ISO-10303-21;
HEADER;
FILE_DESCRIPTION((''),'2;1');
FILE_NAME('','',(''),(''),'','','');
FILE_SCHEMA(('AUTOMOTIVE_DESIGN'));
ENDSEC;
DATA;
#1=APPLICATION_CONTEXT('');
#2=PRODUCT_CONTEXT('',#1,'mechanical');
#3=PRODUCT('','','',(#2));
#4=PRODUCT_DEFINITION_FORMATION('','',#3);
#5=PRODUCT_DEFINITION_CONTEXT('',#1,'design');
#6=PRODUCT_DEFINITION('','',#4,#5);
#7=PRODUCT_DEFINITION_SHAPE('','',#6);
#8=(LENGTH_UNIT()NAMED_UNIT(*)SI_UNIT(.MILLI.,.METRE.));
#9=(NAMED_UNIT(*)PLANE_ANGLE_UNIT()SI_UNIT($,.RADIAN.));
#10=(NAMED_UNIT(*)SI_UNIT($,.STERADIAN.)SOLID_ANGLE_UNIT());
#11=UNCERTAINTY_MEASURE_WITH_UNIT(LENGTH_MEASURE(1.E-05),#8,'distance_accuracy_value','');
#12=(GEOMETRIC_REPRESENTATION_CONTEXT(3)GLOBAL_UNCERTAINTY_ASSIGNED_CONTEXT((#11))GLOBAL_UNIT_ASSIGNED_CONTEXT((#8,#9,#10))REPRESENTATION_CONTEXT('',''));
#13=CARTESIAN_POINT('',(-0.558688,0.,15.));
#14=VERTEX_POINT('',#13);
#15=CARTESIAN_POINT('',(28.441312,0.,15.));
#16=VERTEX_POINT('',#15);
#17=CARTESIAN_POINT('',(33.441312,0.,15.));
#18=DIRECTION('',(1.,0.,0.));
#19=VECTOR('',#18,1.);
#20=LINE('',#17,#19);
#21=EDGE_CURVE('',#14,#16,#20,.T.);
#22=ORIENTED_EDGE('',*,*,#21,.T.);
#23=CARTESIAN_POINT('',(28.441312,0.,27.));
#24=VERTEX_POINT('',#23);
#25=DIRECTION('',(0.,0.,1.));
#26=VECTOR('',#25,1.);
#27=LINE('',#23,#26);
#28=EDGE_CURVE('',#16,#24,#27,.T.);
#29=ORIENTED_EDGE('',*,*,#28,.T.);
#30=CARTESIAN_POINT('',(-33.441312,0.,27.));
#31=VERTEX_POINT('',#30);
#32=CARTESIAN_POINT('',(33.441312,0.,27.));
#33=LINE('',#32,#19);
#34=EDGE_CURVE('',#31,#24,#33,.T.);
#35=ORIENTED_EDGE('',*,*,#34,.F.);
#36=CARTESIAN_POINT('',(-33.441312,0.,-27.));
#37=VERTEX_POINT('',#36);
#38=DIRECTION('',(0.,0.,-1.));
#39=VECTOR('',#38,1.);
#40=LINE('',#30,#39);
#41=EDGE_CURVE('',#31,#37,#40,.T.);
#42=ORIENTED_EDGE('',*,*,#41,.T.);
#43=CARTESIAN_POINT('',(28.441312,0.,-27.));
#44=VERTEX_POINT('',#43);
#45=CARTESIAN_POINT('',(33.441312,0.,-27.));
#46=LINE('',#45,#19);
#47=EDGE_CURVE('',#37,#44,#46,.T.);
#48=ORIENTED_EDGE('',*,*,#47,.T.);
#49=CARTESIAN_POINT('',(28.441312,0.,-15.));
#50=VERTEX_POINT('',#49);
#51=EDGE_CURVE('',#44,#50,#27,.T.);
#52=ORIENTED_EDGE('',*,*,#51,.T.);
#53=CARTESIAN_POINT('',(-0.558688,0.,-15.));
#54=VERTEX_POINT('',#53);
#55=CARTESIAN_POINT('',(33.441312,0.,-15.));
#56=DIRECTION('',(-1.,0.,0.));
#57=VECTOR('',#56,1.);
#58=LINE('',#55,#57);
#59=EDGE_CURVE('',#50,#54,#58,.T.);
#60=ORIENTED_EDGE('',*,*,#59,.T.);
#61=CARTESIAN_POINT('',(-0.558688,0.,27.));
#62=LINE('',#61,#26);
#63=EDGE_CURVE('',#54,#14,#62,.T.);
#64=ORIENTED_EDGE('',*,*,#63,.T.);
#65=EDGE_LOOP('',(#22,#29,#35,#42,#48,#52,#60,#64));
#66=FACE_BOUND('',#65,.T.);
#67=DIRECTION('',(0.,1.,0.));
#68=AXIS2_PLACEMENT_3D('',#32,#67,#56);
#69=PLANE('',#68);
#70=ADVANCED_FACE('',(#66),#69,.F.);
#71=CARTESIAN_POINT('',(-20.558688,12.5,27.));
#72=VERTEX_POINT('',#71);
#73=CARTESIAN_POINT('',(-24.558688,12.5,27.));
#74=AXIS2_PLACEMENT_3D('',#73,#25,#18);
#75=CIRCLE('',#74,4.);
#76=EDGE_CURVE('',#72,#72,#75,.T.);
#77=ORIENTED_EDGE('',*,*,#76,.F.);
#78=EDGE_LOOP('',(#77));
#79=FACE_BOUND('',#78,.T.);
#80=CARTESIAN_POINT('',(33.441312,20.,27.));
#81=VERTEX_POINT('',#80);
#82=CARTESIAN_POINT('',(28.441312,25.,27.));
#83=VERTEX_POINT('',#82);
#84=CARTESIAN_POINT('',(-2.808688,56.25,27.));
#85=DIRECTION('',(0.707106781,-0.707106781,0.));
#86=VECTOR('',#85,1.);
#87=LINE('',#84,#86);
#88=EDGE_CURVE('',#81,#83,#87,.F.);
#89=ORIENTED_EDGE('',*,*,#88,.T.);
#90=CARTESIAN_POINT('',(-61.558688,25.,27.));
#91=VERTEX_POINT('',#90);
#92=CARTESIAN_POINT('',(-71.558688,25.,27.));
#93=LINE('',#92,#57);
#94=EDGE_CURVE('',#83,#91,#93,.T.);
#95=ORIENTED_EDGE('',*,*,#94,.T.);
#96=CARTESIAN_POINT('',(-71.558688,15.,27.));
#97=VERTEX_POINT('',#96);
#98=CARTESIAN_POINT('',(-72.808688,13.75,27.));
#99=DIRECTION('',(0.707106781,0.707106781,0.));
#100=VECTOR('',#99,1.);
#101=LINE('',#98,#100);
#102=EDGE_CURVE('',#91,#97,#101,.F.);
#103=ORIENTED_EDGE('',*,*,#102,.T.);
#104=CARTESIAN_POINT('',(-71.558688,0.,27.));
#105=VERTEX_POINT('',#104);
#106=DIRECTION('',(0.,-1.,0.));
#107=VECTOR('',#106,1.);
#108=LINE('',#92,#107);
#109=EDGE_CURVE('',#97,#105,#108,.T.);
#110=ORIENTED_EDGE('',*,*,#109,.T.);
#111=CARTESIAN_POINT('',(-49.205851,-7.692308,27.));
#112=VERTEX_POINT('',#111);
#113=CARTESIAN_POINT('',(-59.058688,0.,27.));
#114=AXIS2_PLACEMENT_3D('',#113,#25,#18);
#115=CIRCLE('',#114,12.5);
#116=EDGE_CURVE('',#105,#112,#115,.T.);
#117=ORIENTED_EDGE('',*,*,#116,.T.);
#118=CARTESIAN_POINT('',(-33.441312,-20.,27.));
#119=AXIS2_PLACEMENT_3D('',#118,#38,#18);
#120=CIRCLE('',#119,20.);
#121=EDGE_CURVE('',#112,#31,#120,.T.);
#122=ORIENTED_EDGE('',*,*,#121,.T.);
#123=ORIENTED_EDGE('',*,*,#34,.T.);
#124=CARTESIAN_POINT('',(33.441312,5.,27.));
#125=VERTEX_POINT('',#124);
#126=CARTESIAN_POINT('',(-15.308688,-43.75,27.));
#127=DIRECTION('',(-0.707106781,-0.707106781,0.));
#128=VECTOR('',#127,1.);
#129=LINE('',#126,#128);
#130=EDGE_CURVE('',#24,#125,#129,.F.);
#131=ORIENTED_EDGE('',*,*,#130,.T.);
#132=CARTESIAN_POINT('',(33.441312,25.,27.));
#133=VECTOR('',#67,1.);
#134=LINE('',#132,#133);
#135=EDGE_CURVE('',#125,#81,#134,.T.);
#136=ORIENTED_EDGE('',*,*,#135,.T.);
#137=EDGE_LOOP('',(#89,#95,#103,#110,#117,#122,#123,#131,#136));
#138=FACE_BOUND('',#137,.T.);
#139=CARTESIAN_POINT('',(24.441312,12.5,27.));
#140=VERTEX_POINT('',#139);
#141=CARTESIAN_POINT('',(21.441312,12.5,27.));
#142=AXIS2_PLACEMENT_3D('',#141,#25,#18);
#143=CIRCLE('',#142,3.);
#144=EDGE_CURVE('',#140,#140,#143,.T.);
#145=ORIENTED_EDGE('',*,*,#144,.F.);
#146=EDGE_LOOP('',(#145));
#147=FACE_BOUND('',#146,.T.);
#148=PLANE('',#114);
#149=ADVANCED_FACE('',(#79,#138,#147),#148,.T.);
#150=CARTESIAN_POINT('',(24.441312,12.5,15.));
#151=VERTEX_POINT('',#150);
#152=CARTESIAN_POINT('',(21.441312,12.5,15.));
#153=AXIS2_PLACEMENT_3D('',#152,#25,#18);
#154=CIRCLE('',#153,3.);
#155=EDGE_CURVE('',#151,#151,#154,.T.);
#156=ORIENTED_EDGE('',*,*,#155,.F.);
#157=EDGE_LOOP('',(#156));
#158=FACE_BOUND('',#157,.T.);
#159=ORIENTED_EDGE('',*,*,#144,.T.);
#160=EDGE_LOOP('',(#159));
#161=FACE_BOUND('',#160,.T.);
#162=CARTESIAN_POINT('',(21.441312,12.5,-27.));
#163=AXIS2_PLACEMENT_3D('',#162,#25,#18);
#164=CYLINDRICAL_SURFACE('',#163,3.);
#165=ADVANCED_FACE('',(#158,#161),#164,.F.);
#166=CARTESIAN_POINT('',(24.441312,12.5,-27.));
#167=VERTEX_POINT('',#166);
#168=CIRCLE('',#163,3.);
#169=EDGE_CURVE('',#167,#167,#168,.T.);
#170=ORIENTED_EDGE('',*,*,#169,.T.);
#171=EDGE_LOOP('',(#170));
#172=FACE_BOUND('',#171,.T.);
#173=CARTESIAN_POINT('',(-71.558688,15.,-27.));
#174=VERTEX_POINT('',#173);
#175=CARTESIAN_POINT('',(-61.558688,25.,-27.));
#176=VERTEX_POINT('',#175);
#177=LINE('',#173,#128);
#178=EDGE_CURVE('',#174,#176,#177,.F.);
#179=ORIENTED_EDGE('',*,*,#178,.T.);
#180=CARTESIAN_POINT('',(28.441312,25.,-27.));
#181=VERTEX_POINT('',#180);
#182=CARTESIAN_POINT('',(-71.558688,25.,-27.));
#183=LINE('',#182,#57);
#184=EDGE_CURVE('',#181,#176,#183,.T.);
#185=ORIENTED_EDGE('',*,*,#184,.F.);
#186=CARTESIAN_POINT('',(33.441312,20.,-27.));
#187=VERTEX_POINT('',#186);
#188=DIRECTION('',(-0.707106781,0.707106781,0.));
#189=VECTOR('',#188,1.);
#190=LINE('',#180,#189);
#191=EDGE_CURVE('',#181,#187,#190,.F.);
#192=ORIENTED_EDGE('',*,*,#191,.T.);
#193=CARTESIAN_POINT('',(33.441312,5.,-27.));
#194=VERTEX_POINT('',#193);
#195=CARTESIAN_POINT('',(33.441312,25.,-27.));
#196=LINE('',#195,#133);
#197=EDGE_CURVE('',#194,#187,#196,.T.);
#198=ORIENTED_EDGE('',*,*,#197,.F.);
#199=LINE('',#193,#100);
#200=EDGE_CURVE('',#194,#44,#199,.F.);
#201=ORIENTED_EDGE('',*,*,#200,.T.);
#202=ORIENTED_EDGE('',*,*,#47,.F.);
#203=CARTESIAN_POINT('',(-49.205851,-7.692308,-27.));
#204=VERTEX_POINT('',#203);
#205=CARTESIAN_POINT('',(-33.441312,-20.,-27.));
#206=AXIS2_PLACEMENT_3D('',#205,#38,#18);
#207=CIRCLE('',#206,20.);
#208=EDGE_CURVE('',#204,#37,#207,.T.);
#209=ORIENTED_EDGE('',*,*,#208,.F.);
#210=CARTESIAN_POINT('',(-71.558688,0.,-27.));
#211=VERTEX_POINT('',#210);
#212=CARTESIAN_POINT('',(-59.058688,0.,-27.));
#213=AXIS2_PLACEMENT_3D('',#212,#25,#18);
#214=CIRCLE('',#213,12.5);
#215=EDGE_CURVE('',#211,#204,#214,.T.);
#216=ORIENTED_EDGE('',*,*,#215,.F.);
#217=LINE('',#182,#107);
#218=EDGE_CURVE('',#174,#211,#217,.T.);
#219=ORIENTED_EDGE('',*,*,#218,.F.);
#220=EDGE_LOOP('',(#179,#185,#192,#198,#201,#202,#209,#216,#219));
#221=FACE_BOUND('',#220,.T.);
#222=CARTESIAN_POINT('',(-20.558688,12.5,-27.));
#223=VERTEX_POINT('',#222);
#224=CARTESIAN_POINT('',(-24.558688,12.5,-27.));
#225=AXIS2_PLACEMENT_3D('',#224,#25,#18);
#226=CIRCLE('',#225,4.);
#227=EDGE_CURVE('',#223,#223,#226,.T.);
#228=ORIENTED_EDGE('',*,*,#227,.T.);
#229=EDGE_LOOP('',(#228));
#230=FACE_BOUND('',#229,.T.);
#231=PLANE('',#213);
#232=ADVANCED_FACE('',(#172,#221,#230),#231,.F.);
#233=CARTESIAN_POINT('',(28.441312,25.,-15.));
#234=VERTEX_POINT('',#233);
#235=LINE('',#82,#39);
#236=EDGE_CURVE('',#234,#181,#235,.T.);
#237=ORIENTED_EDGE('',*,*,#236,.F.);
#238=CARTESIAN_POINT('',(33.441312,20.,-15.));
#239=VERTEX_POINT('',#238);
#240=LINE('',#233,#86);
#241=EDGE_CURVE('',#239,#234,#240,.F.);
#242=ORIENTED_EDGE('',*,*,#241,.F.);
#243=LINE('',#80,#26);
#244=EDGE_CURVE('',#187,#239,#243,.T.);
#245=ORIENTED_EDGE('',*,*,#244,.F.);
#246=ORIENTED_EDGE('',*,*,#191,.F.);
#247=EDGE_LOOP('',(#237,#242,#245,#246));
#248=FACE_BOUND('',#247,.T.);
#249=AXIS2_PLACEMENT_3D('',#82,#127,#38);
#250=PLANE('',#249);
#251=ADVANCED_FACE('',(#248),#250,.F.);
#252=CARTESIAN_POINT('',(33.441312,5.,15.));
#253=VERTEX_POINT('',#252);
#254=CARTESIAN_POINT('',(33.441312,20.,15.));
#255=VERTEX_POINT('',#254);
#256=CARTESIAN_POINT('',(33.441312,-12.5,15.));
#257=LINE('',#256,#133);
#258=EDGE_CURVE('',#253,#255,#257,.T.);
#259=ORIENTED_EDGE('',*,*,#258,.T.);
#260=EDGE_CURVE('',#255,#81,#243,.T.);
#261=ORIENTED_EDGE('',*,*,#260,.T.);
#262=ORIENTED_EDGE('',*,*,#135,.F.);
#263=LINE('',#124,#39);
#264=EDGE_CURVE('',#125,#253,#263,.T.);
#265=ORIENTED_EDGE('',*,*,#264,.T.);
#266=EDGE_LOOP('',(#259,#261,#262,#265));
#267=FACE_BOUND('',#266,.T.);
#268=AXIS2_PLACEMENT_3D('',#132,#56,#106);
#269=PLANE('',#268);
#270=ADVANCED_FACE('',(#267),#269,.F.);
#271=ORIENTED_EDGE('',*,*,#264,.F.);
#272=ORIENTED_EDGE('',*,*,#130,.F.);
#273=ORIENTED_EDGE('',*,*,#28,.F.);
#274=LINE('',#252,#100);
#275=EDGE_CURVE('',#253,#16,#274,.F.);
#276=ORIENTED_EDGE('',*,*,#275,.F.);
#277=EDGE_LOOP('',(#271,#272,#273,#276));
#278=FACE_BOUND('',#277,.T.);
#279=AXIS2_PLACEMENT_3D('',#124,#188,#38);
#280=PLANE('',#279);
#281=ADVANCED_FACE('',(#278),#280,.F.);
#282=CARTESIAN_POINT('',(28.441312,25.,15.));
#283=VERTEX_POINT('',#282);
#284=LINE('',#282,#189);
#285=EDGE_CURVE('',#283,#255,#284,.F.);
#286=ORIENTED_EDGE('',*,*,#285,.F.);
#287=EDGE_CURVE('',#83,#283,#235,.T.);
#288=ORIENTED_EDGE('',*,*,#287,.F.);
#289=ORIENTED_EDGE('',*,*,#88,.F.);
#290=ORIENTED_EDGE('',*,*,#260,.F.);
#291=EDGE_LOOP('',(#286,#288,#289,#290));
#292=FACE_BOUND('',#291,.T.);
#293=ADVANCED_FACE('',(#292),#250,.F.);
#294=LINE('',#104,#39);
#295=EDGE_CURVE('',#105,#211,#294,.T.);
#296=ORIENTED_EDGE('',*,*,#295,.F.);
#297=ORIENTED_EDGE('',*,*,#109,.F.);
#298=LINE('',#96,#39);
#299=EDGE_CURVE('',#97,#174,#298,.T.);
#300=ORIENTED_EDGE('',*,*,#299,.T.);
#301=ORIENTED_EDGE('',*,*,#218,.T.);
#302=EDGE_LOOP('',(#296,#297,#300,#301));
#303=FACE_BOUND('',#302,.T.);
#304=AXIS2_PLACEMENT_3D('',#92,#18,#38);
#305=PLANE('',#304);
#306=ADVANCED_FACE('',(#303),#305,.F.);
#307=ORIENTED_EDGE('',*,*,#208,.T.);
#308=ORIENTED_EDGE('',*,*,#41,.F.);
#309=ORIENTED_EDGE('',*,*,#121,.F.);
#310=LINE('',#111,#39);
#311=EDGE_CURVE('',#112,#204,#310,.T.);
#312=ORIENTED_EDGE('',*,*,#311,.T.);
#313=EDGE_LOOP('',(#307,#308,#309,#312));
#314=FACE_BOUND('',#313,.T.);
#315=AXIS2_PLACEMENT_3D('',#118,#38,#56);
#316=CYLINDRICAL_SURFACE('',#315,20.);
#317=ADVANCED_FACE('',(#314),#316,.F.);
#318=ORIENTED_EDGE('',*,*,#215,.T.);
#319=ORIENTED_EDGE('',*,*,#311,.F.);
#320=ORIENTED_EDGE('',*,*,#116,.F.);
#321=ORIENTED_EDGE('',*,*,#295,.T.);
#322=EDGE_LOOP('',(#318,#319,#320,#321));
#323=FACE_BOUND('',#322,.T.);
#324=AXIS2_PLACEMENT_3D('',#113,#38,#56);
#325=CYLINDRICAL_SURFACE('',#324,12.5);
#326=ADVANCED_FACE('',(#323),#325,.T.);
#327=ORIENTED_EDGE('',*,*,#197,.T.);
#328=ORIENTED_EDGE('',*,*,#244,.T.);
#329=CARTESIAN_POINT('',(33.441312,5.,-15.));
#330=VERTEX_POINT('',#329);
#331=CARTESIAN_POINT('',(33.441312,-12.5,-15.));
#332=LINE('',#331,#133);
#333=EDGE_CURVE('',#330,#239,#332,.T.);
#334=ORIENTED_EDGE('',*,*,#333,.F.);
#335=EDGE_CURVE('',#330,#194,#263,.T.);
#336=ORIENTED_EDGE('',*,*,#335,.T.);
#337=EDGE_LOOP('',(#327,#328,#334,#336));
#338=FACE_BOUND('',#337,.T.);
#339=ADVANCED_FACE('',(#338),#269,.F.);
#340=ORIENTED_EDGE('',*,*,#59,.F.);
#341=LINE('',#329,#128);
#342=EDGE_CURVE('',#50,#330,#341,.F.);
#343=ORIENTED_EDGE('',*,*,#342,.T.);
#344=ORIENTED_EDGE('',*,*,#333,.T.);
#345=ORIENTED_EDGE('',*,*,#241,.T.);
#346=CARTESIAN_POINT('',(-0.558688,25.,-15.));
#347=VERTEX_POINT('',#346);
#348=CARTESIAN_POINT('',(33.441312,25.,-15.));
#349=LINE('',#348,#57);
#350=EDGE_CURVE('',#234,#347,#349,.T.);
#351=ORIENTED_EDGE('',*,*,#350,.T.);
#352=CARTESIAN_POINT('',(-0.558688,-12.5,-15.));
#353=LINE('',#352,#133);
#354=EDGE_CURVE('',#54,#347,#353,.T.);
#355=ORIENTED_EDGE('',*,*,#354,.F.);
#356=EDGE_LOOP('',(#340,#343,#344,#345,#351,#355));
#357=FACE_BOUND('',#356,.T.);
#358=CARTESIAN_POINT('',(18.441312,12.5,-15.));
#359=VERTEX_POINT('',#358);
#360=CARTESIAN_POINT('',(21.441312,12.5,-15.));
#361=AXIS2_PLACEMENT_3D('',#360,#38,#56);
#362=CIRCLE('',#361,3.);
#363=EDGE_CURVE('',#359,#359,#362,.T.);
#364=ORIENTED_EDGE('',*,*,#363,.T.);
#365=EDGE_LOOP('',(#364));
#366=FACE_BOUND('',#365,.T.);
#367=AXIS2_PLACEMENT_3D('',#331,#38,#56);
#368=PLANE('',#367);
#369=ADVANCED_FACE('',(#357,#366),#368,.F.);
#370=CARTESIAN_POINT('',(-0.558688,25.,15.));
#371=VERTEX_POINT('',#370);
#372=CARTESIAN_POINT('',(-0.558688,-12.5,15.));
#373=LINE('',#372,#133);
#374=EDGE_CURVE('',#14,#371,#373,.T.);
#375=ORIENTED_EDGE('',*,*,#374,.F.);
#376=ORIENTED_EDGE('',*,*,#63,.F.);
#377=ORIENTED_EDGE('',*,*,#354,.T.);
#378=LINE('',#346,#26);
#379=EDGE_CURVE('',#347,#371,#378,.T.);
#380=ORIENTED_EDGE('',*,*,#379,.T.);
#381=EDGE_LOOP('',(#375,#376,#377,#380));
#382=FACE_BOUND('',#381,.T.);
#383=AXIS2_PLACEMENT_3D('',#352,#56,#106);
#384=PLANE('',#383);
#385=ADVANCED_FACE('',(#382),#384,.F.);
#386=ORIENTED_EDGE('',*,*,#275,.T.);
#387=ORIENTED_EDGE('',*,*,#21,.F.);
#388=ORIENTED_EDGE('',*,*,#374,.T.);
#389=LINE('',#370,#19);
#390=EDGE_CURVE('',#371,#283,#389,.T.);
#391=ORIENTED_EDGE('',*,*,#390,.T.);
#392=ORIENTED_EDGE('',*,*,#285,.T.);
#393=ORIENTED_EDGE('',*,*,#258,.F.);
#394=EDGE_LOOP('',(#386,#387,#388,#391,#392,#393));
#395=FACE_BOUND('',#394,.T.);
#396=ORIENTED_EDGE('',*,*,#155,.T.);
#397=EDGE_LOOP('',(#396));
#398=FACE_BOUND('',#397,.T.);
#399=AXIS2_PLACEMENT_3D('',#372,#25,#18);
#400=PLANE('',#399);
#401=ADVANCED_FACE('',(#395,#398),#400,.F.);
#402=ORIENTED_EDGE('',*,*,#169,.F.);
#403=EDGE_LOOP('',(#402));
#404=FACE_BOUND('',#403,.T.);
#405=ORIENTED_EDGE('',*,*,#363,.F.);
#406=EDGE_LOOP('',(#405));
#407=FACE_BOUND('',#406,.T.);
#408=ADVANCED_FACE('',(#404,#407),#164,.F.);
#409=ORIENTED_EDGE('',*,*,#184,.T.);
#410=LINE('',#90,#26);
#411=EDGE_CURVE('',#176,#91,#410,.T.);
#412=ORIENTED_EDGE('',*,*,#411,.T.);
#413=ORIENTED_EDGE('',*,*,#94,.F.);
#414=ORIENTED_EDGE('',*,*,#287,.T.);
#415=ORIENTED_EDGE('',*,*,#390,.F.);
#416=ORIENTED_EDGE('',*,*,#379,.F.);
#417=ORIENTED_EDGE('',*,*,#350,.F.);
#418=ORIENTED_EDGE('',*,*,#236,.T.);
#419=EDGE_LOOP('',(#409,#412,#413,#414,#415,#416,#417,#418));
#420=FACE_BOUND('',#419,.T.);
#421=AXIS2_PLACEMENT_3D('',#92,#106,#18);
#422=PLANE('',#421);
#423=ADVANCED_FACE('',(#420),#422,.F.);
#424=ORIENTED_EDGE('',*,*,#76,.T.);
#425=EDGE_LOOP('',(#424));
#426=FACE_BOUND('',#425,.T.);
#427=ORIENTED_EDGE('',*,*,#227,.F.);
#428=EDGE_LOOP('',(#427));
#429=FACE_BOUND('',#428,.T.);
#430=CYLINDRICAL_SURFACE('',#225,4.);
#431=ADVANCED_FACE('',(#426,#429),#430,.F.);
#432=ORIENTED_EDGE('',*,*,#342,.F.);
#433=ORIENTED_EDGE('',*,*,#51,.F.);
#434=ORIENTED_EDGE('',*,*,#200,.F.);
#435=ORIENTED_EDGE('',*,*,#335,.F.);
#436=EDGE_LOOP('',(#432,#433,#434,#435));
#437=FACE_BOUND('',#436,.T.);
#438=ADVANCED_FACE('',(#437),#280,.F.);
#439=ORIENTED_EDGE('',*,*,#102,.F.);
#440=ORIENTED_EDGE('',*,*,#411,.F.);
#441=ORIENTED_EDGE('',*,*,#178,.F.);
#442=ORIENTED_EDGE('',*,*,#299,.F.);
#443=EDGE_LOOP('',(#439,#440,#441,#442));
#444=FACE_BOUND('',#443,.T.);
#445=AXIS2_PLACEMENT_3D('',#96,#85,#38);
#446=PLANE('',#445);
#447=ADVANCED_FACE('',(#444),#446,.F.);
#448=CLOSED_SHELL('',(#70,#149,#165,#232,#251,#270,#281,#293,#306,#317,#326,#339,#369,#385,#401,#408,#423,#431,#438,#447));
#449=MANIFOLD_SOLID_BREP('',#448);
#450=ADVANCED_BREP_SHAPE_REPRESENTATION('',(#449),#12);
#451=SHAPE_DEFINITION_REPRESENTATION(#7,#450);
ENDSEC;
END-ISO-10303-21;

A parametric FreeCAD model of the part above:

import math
import FreeCAD as App
import Part
import Sketcher


def edges_at(feature, points):
    """Names of the edges that pass closest to the given points."""
    edges = feature.Shape.Edges
    near = lambda p: min(range(len(edges)), key=lambda i: edges[i].distToShape(Part.Vertex(*p))[0])
    return sorted({f"Edge{near(p) + 1}" for p in points})


def add_polygon(sketch, points):
    """Adds a closed chain of lines whose ends are joined by coincident constraints."""
    first, n = sketch.GeometryCount, len(points)
    for a, b in zip(points, points[1:] + points[:1]):
        sketch.addGeometry(Part.LineSegment(App.Vector(*a, 0), App.Vector(*b, 0)), False)
    for i in range(n):
        sketch.addConstraint(Sketcher.Constraint("Coincident", first + i, 2, first + (i + 1) % n, 1))

doc = App.newDocument("Part")
body = doc.addObject("PartDesign::Body", "Body")

# Sketch on XY plane
sketch1 = body.newObject("Sketcher::SketchObject", "Sketch")
sketch1.AttachmentSupport = (doc.getObject("XY_Plane"), [""])
sketch1.MapMode = "FlatFace"
sketch1.addGeometry(Part.LineSegment(App.Vector(33, 25, 0), App.Vector(-72, 25, 0)), False)
sketch1.addGeometry(Part.LineSegment(App.Vector(-72, 25, 0), App.Vector(-72, 0, 0)), False)
sketch1.addGeometry(Part.ArcOfCircle(Part.Circle(App.Vector(-59, 0, 0), App.Vector(0, 0, 1), 12), math.radians(180), math.radians(322)), False)
sketch1.addGeometry(Part.ArcOfCircle(Part.Circle(App.Vector(-33, -20, 0), App.Vector(0, 0, 1), 20), math.radians(90), math.radians(142)), False)
sketch1.addGeometry(Part.LineSegment(App.Vector(-33, 0, 0), App.Vector(33, 0, 0)), False)
sketch1.addGeometry(Part.LineSegment(App.Vector(33, 0, 0), App.Vector(33, 25, 0)), False)
sketch1.addConstraint(Sketcher.Constraint("Coincident", 0, 2, 1, 1))
sketch1.addConstraint(Sketcher.Constraint("Tangent", 1, 2, 2, 1))
sketch1.addConstraint(Sketcher.Constraint("Tangent", 2, 2, 3, 2))
sketch1.addConstraint(Sketcher.Constraint("Tangent", 3, 1, 4, 1))
sketch1.addConstraint(Sketcher.Constraint("Coincident", 4, 2, 5, 1))
sketch1.addConstraint(Sketcher.Constraint("Coincident", 5, 2, 0, 1))
sketch1.addConstraint(Sketcher.Constraint("Horizontal", 0))
sketch1.addConstraint(Sketcher.Constraint("Vertical", 1))
sketch1.addConstraint(Sketcher.Constraint("Horizontal", 4))
sketch1.addConstraint(Sketcher.Constraint("Vertical", 5))
sketch1.addConstraint(Sketcher.Constraint("Symmetric", 3, 1, 4, 2, -1, 1))
sketch1.addConstraint(Sketcher.Constraint("PointOnObject", 2, 3, -1))
sketch1.addConstraint(Sketcher.Constraint("Radius", 3, 20.0))
sketch1.addConstraint(Sketcher.Constraint("Radius", 2, 12.5))
sketch1.addConstraint(Sketcher.Constraint("DistanceX", 0, 2, 0, 1, 105.0))
sketch1.addConstraint(Sketcher.Constraint("DistanceY", 1, 2, 1, 1, 25.0))
pad1 = body.newObject("PartDesign::Pad", "Pad")
pad1.Profile = sketch1
pad1.Length = 54
pad1.Midplane = True
doc.recompute()

chamfer = body.newObject("PartDesign::Chamfer", "Chamfer")
chamfer.Base = (pad1, edges_at(pad1, [(-71.559, 25, 0)]))
chamfer.Size = 10
doc.recompute()

chamfer2 = body.newObject("PartDesign::Chamfer", "Chamfer001")
chamfer2.Base = (chamfer, edges_at(chamfer, [(33.441, 25, 0), (33.441, 0, 0)]))
chamfer2.Size = 5

# Sketch on XZ plane
sketch2 = body.newObject("Sketcher::SketchObject", "Sketch001")
sketch2.AttachmentSupport = (doc.getObject("XZ_Plane"), [""])
sketch2.MapMode = "FlatFace"
sketch2.AttachmentOffset = App.Placement(App.Vector(0, 0, -25), App.Rotation())
add_polygon(sketch2, [(-1, -15), (-1, 15), (33, 15), (33, -15)])  # lines 0-3
sketch2.addConstraint(Sketcher.Constraint("Vertical", 0))
sketch2.addConstraint(Sketcher.Constraint("Horizontal", 1))
sketch2.addConstraint(Sketcher.Constraint("Vertical", 2))
sketch2.addConstraint(Sketcher.Constraint("Horizontal", 3))
sketch2.addConstraint(Sketcher.Constraint("DistanceX", 1, 1, 1, 2, 34.0))
sketch2.addConstraint(Sketcher.Constraint("DistanceY", 0, 1, 0, 2, 30.0))
sketch2.addConstraint(Sketcher.Constraint("DistanceY", -1, 1, 0, 2, 15.0))
sketch2.addConstraint(Sketcher.Constraint("DistanceX", 0, 2, -1, 1, 0.558688))
pocket1 = body.newObject("PartDesign::Pocket", "Pocket")
pocket1.Profile = sketch2
pocket1.Type = "ThroughAll"
pocket1.Reversed = True

# Sketch on XY plane
sketch3 = body.newObject("Sketcher::SketchObject", "Sketch002")
sketch3.AttachmentSupport = (doc.getObject("XY_Plane"), [""])
sketch3.MapMode = "FlatFace"
sketch3.AttachmentOffset = App.Placement(App.Vector(0, 0, 27), App.Rotation())
sketch3.addGeometry(Part.Circle(App.Vector(21.4, 12.5, 0), App.Vector(0, 0, 1), 3), False)
sketch3.addGeometry(Part.Circle(App.Vector(-24.6, 12.5, 0), App.Vector(0, 0, 1), 4), False)
sketch3.addConstraint(Sketcher.Constraint("Horizontal", 0, 3, 1, 3))
sketch3.addConstraint(Sketcher.Constraint("Diameter", 0, 6.0))
sketch3.addConstraint(Sketcher.Constraint("Diameter", 1, 8.0))
sketch3.addConstraint(Sketcher.Constraint("DistanceX", 1, 3, 0, 3, 46.0))
sketch3.addConstraint(Sketcher.Constraint("DistanceY", -1, 1, 0, 3, 12.5))
sketch3.addConstraint(Sketcher.Constraint("DistanceX", -1, 1, 0, 3, 21.441312))
pocket2 = body.newObject("PartDesign::Pocket", "Pocket001")
pocket2.Profile = sketch3
pocket2.Type = "ThroughAll"

doc.recompute()
